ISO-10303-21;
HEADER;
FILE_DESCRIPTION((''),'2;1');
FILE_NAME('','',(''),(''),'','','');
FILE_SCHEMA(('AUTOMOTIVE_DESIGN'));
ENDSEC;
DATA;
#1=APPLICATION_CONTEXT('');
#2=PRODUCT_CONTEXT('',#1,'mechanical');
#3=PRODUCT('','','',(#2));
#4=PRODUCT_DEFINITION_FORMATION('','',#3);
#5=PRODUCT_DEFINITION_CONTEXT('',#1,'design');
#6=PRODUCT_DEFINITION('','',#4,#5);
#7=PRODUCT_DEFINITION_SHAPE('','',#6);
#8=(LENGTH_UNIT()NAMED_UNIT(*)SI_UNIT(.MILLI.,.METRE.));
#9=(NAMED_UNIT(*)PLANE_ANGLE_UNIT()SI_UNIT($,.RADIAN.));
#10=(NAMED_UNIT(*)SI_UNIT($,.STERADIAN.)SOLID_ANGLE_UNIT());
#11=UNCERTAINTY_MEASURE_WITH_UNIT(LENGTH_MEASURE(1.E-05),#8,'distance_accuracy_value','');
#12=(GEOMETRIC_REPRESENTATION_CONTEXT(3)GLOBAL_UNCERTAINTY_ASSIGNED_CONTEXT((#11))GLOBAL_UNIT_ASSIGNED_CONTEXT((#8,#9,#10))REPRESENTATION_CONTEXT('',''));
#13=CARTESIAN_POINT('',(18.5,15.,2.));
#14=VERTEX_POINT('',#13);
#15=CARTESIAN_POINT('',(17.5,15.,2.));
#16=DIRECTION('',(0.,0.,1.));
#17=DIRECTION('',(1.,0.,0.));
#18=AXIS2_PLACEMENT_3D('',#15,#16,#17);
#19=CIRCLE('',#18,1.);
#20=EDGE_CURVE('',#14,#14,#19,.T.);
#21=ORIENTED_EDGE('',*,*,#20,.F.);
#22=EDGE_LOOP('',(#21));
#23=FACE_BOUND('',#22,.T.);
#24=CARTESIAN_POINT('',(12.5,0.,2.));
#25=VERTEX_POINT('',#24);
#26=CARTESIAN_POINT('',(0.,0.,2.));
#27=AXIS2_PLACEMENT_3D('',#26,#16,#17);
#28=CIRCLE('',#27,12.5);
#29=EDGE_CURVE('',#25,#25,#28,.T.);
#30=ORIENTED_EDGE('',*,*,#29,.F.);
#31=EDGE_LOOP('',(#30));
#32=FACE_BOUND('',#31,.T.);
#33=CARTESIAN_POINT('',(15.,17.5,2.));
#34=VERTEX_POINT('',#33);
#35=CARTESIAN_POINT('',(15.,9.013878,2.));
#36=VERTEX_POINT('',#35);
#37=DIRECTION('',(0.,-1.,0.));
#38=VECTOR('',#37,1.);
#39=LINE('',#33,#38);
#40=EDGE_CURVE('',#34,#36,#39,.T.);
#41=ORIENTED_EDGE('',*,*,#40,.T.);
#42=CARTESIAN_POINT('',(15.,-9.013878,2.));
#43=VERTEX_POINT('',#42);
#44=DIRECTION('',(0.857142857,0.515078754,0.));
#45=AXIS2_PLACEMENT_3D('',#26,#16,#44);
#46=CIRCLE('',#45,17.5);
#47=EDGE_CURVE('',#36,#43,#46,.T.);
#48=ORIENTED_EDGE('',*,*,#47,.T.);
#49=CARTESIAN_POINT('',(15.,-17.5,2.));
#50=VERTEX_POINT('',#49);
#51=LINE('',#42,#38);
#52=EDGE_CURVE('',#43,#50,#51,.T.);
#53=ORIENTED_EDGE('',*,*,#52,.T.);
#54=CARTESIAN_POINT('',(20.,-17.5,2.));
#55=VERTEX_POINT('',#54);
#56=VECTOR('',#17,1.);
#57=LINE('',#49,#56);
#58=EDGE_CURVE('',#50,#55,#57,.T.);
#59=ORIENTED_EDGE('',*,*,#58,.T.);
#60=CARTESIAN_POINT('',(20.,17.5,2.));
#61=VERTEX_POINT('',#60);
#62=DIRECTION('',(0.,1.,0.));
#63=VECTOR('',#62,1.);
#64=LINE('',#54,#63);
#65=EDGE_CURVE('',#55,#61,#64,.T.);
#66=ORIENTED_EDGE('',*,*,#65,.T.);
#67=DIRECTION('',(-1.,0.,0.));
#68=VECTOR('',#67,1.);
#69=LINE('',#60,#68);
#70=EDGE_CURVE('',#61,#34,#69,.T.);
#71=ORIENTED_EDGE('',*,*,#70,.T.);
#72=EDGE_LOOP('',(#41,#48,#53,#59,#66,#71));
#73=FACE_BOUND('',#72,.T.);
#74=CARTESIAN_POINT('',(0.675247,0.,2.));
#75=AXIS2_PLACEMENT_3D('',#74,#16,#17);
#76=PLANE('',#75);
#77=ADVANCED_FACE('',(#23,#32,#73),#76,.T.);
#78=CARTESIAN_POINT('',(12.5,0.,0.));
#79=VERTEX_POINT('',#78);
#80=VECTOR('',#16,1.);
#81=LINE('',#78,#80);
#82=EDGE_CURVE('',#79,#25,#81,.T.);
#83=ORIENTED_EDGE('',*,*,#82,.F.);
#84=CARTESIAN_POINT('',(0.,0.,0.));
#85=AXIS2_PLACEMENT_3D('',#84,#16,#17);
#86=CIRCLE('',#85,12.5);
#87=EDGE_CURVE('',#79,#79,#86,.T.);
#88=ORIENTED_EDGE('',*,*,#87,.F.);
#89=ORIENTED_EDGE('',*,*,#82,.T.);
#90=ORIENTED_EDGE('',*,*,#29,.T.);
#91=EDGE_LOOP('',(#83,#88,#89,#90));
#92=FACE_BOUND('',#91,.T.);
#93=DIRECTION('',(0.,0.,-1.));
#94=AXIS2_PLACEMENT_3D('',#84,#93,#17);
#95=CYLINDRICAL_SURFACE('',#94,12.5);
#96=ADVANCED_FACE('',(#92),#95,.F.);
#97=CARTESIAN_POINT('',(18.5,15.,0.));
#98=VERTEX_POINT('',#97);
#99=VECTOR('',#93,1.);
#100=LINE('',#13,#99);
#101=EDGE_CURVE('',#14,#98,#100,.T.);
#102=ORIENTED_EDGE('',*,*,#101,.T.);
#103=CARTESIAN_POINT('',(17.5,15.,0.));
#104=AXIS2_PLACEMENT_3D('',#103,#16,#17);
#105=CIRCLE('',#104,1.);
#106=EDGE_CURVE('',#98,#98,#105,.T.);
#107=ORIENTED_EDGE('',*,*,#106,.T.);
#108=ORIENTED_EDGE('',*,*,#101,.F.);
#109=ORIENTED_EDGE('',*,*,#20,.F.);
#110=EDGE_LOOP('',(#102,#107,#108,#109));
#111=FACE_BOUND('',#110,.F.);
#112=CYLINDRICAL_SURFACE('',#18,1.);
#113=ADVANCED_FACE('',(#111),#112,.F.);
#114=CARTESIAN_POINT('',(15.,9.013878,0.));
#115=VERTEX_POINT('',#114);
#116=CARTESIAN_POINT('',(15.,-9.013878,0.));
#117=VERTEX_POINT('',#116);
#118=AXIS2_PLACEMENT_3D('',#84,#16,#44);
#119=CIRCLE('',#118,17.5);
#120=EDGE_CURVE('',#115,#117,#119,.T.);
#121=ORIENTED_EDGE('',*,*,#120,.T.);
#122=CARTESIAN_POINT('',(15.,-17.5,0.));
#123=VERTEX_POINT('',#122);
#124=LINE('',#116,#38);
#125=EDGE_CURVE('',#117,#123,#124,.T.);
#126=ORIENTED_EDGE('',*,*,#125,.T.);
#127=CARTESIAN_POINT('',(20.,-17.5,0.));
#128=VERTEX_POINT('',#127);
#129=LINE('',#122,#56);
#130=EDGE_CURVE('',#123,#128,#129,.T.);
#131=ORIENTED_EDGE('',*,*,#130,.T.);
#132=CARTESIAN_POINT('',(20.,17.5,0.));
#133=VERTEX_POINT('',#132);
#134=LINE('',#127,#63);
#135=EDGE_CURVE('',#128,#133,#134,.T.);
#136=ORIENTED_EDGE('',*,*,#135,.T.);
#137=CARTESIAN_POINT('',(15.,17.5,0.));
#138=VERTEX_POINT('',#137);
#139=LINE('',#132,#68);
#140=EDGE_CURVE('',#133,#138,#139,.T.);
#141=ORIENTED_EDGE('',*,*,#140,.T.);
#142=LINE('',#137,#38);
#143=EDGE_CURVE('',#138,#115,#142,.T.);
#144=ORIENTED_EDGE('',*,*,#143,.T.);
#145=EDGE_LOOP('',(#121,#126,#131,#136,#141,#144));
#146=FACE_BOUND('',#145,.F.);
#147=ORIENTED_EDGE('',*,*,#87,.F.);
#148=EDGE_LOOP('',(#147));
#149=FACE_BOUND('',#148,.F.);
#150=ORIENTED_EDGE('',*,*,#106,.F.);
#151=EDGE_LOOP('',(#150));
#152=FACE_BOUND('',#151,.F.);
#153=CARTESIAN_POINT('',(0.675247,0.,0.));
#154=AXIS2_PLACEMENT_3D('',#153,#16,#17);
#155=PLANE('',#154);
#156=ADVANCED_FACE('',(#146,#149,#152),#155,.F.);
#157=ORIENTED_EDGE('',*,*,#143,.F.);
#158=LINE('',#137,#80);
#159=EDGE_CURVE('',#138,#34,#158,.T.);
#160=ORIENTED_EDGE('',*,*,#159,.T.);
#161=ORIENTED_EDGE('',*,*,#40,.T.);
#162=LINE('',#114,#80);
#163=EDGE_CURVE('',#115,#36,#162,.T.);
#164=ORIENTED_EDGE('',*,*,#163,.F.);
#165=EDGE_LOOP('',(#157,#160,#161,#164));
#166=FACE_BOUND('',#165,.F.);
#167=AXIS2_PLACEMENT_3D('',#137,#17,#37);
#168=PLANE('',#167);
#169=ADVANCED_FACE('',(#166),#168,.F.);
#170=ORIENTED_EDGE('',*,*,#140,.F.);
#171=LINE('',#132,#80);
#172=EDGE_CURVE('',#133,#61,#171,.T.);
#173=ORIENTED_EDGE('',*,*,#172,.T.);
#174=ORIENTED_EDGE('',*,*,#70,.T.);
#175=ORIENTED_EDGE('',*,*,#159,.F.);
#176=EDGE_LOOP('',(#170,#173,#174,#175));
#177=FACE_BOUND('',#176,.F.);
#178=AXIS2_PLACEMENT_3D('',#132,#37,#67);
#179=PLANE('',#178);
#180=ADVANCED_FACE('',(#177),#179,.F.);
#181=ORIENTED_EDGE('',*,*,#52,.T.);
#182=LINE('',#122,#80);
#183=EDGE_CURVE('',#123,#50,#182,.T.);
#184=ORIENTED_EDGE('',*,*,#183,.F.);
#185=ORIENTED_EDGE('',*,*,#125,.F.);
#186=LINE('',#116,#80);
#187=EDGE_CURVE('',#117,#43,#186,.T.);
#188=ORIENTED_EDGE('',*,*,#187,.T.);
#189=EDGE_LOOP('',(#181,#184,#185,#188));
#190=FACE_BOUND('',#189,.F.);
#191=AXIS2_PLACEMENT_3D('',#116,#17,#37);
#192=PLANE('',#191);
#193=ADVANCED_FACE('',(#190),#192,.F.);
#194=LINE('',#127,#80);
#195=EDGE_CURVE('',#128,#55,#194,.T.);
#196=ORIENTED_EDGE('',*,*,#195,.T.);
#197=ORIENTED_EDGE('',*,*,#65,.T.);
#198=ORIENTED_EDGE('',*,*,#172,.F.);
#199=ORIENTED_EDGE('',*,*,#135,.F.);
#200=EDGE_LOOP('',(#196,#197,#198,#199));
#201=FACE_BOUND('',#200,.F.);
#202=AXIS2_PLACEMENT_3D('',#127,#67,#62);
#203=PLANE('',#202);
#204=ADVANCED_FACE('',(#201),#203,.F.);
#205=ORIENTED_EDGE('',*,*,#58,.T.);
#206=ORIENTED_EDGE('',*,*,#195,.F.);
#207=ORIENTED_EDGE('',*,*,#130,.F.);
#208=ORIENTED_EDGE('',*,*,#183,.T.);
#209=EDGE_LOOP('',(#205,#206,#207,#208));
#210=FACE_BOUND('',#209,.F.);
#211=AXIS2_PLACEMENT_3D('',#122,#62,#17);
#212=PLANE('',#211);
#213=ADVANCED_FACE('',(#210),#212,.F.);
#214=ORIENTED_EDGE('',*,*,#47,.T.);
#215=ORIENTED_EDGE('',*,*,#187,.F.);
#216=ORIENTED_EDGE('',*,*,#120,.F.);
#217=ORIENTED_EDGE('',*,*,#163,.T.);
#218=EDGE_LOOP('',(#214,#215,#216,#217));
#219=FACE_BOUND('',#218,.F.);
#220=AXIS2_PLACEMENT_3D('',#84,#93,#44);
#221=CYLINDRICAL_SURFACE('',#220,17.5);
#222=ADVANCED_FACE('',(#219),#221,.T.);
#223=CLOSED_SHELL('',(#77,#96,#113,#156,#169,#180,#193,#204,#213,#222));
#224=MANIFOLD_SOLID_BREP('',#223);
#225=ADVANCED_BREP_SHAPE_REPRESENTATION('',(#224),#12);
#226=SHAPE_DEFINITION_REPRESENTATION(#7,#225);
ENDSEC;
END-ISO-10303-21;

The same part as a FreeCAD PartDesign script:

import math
import FreeCAD as App
import Part
import Sketcher

V = App.Vector
Q = App.Units.Quantity

doc = App.newDocument("Part")
body = doc.addObject("PartDesign::Body", "Body")

# Sketch on XY plane
sketch1 = doc.addObject("Sketcher::SketchObject", "Sketch")
body.addObject(sketch1)
sketch1.AttachmentSupport = (doc.XY_Plane, [""])
sketch1.MapMode = "FlatFace"
sketch1.addGeometry(Part.ArcOfCircle(Part.Circle(V(0, 0, 0), V(0, 0, 1), 18), math.radians(31), math.radians(329)), False)
sketch1.addGeometry(Part.LineSegment(V(15, -9, 0), V(15, -18, 0)), False)
sketch1.addGeometry(Part.LineSegment(V(15, -18, 0), V(20, -18, 0)), False)
sketch1.addGeometry(Part.LineSegment(V(20, -18, 0), V(20, 18, 0)), False)
sketch1.addGeometry(Part.LineSegment(V(20, 18, 0), V(15, 18, 0)), False)
sketch1.addGeometry(Part.LineSegment(V(15, 18, 0), V(15, 9, 0)), False)
sketch1.addGeometry(Part.Circle(V(0, 0, 0), V(0, 0, 1), 12), False)
sketch1.addConstraint(Sketcher.Constraint("Coincident", 0, 2, 1, 1))
sketch1.addConstraint(Sketcher.Constraint("Coincident", 1, 2, 2, 1))
sketch1.addConstraint(Sketcher.Constraint("Coincident", 2, 2, 3, 1))
sketch1.addConstraint(Sketcher.Constraint("Coincident", 3, 2, 4, 1))
sketch1.addConstraint(Sketcher.Constraint("Coincident", 4, 2, 5, 1))
sketch1.addConstraint(Sketcher.Constraint("Coincident", 5, 2, 0, 1))
sketch1.addConstraint(Sketcher.Constraint("Vertical", 1))
sketch1.addConstraint(Sketcher.Constraint("Horizontal", 2))
sketch1.addConstraint(Sketcher.Constraint("Vertical", 3))
sketch1.addConstraint(Sketcher.Constraint("Horizontal", 4))
sketch1.addConstraint(Sketcher.Constraint("Vertical", 5))
sketch1.addConstraint(Sketcher.Constraint("Coincident", 0, 3, -1, 1))
sketch1.addConstraint(Sketcher.Constraint("Coincident", 6, 3, -1, 1))
sketch1.addConstraint(Sketcher.Constraint("Symmetric", 1, 2, 4, 2, -1))
sketch1.addConstraint(Sketcher.Constraint("Diameter", 6, Q("25 mm")))
sketch1.addConstraint(Sketcher.Constraint("Radius", 0, Q("17.5 mm")))
sketch1.addConstraint(Sketcher.Constraint("DistanceX", 2, 1, 2, 2, Q("5 mm")))
sketch1.addConstraint(Sketcher.Constraint("DistanceY", 3, 1, 3, 2, Q("35 mm")))
sketch1.addConstraint(Sketcher.Constraint("DistanceX", -1, 1, 0, 2, Q("15 mm")))
pad1 = doc.addObject("PartDesign::Pad", "Pad")
body.addObject(pad1)
pad1.Profile = sketch1
pad1.Length = 2

# Sketch on XY plane
sketch2 = doc.addObject("Sketcher::SketchObject", "Sketch001")
body.addObject(sketch2)
sketch2.AttachmentSupport = (doc.XY_Plane, [""])
sketch2.MapMode = "FlatFace"
sketch2.AttachmentOffset = App.Placement(V(0, 0, 2), App.Rotation())
sketch2.addGeometry(Part.Circle(V(17.5, 15, 0), V(0, 0, 1), 1), False)
sketch2.addConstraint(Sketcher.Constraint("Diameter", 0, Q("2 mm")))
sketch2.addConstraint(Sketcher.Constraint("DistanceY", -1, 1, 0, 3, Q("15 mm")))
sketch2.addConstraint(Sketcher.Constraint("DistanceX", -1, 1, 0, 3, Q("17.5 mm")))
pocket1 = doc.addObject("PartDesign::Pocket", "Pocket")
body.addObject(pocket1)
pocket1.Profile = sketch2
pocket1.Length = 2

doc.recompute()
